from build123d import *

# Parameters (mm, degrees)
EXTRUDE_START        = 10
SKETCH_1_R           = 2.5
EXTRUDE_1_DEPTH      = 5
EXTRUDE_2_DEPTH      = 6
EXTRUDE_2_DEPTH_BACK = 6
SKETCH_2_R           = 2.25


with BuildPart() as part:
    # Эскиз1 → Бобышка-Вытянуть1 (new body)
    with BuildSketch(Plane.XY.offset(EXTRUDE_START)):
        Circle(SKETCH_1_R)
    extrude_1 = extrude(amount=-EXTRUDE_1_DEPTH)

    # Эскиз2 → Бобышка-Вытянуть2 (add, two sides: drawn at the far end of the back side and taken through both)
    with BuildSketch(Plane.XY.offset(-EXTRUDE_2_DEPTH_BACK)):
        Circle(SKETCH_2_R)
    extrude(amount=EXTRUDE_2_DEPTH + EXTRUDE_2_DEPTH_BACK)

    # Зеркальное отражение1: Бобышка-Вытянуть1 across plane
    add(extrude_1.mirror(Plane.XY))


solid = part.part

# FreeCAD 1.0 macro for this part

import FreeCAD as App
import Part
import Sketcher
from FreeCAD import Vector
Q = App.Units.Quantity

doc = App.newDocument("Part")
params = doc.addObject("Spreadsheet::Sheet", "Params")
for row, (alias, value) in enumerate([
    ("sketch1_diameter", "5 mm"),
    ("pad1_length", "5 mm"),
    ("sketch2_diameter", "4.5 mm"),
    ("pad2_length", "6 mm"),
    ("pad2_length2", "6 mm"),
], start=1):
    params.set(f"A{row}", alias)
    params.set(f"B{row}", "=" + value)
    params.setAlias(f"B{row}", alias)

body = doc.addObject("PartDesign::Body", "Body")

sketch1 = doc.addObject("Sketcher::SketchObject", "Sketch")
body.addObject(sketch1)
sketch1.AttachmentSupport = (doc.XY_Plane, [""])
sketch1.MapMode = "FlatFace"
sketch1.AttachmentOffset = App.Placement(Vector(0, 0, 10), App.Rotation())
sketch1.addGeometry(Part.Circle(Vector(0, 0, 0), Vector(0, 0, 1), 2.5), False)
sketch1.addConstraint([
    Sketcher.Constraint("Coincident", 0, 3, -1, 1),
    Sketcher.Constraint("Diameter", 0, Q("5 mm")),
])
sketch1.setExpression("Constraints[1]", "Params.sketch1_diameter")
pad1 = doc.addObject("PartDesign::Pad", "Pad")
body.addObject(pad1)
pad1.Profile = sketch1
pad1.setExpression("Length", "Params.pad1_length")
pad1.Reversed = True

sketch2 = doc.addObject("Sketcher::SketchObject", "Sketch001")
body.addObject(sketch2)
sketch2.AttachmentSupport = (doc.XY_Plane, [""])
sketch2.MapMode = "FlatFace"
sketch2.addGeometry(Part.Circle(Vector(0, 0, 0), Vector(0, 0, 1), 2.2), False)
sketch2.addConstraint([
    Sketcher.Constraint("Coincident", 0, 3, -1, 1),
    Sketcher.Constraint("Diameter", 0, Q("4.5 mm")),
])
sketch2.setExpression("Constraints[1]", "Params.sketch2_diameter")
pad2 = doc.addObject("PartDesign::Pad", "Pad001")
body.addObject(pad2)
pad2.Profile = sketch2
pad2.Type = "TwoLengths"
pad2.setExpression("Length", "Params.pad2_length")
pad2.setExpression("Length2", "Params.pad2_length2")
doc.recompute()

mirrored = doc.addObject("PartDesign::Mirrored", "Mirrored")
body.addObject(mirrored)
mirrored.Originals = [pad1]
mirrored.MirrorPlane = (doc.XY_Plane, [""])
body.Tip = mirrored

doc.recompute()
